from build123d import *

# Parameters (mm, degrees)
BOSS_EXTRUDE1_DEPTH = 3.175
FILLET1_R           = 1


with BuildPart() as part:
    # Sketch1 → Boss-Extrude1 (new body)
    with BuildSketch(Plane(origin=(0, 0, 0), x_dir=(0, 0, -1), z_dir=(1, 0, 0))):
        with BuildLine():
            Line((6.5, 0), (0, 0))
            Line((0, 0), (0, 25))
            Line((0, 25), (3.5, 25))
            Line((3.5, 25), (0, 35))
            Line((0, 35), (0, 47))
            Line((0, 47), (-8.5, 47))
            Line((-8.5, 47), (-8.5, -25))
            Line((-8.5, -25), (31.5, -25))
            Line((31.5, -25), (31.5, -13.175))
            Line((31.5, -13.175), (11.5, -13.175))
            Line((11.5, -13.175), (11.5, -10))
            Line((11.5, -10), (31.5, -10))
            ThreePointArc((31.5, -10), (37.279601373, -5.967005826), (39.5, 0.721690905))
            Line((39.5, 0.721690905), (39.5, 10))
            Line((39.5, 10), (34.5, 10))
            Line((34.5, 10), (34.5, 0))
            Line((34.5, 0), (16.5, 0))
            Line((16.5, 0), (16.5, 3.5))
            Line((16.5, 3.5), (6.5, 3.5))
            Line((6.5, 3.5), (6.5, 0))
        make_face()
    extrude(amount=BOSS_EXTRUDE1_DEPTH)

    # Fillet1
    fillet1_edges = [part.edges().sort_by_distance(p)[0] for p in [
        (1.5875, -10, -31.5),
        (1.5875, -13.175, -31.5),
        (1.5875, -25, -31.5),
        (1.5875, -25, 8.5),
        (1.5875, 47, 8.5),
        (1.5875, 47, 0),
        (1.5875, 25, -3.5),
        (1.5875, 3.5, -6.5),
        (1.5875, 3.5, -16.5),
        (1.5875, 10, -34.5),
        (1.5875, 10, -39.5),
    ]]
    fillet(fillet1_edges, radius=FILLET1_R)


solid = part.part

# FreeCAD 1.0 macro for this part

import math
import FreeCAD as App
import Part
import Sketcher


def edges_at(feature, points):
    """Names of the edges that pass closest to the given points."""
    edges = feature.Shape.Edges
    near = lambda p: min(range(len(edges)), key=lambda i: edges[i].distToShape(Part.Vertex(*p))[0])
    return sorted({f"Edge{near(p) + 1}" for p in points})

doc = App.newDocument("Part")
body = doc.addObject("PartDesign::Body", "Body")

# Sketch on YZ plane
sketch1 = body.newObject("Sketcher::SketchObject", "Sketch")
sketch1.AttachmentSupport = (doc.getObject("YZ_Plane"), [""])
sketch1.MapMode = "FlatFace"
sketch1.addGeometry([
    Part.LineSegment(App.Vector(0, -6.5, 0), App.Vector(0, 0, 0)),  # 0
    Part.LineSegment(App.Vector(0, 0, 0), App.Vector(25, 0, 0)),  # 1
    Part.LineSegment(App.Vector(25, 0, 0), App.Vector(25, -3.5, 0)),  # 2
    Part.LineSegment(App.Vector(25, -3.5, 0), App.Vector(35, 0, 0)),  # 3
    Part.LineSegment(App.Vector(35, 0, 0), App.Vector(47, 0, 0)),  # 4
    Part.LineSegment(App.Vector(47, 0, 0), App.Vector(47, 8.5, 0)),  # 5
    Part.LineSegment(App.Vector(47, 8.5, 0), App.Vector(-25, 8.5, 0)),  # 6
    Part.LineSegment(App.Vector(-25, 8.5, 0), App.Vector(-25, -31.5, 0)),  # 7
    Part.LineSegment(App.Vector(-25, -31.5, 0), App.Vector(-13.2, -31.5, 0)),  # 8
    Part.LineSegment(App.Vector(-13.2, -31.5, 0), App.Vector(-13.2, -11.5, 0)),  # 9
    Part.LineSegment(App.Vector(-13.2, -11.5, 0), App.Vector(-10, -11.5, 0)),  # 10
    Part.LineSegment(App.Vector(-10, -11.5, 0), App.Vector(-10, -31.5, 0)),  # 11
    Part.ArcOfCircle(Part.Circle(App.Vector(0.7, -28.3, 0), App.Vector(0, 0, 1), 11.2), math.radians(-163), math.radians(-90)),  # 12
    Part.LineSegment(App.Vector(0.7, -39.5, 0), App.Vector(10, -39.5, 0)),  # 13
    Part.LineSegment(App.Vector(10, -39.5, 0), App.Vector(10, -34.5, 0)),  # 14
    Part.LineSegment(App.Vector(10, -34.5, 0), App.Vector(0, -34.5, 0)),  # 15
    Part.LineSegment(App.Vector(0, -34.5, 0), App.Vector(0, -16.5, 0)),  # 16
    Part.LineSegment(App.Vector(0, -16.5, 0), App.Vector(3.5, -16.5, 0)),  # 17
    Part.LineSegment(App.Vector(3.5, -16.5, 0), App.Vector(3.5, -6.5, 0)),  # 18
    Part.LineSegment(App.Vector(3.5, -6.5, 0), App.Vector(0, -6.5, 0)),  # 19
], False)
sketch1.addConstraint([
    Sketcher.Constraint("Coincident", 0, 2, 1, 1),
    Sketcher.Constraint("Coincident", 1, 2, 2, 1),
    Sketcher.Constraint("Coincident", 2, 2, 3, 1),
    Sketcher.Constraint("Coincident", 3, 2, 4, 1),
    Sketcher.Constraint("Coincident", 4, 2, 5, 1),
    Sketcher.Constraint("Coincident", 5, 2, 6, 1),
    Sketcher.Constraint("Coincident", 6, 2, 7, 1),
    Sketcher.Constraint("Coincident", 7, 2, 8, 1),
    Sketcher.Constraint("Coincident", 8, 2, 9, 1),
    Sketcher.Constraint("Coincident", 9, 2, 10, 1),
    Sketcher.Constraint("Coincident", 10, 2, 11, 1),
    Sketcher.Constraint("Coincident", 11, 2, 12, 1),
    Sketcher.Constraint("Tangent", 12, 2, 13, 1),
    Sketcher.Constraint("Coincident", 13, 2, 14, 1),
    Sketcher.Constraint("Coincident", 14, 2, 15, 1),
    Sketcher.Constraint("Coincident", 15, 2, 16, 1),
    Sketcher.Constraint("Coincident", 16, 2, 17, 1),
    Sketcher.Constraint("Coincident", 17, 2, 18, 1),
    Sketcher.Constraint("Coincident", 18, 2, 19, 1),
    Sketcher.Constraint("Coincident", 19, 2, 0, 1),
    Sketcher.Constraint("Vertical", 0),
    Sketcher.Constraint("Horizontal", 1),
    Sketcher.Constraint("Vertical", 2),
    Sketcher.Constraint("Horizontal", 4),
    Sketcher.Constraint("Vertical", 5),
    Sketcher.Constraint("Horizontal", 6),
    Sketcher.Constraint("Vertical", 7),
    Sketcher.Constraint("Horizontal", 8),
    Sketcher.Constraint("Vertical", 9),
    Sketcher.Constraint("Horizontal", 10),
    Sketcher.Constraint("Vertical", 11),
    Sketcher.Constraint("Horizontal", 13),
    Sketcher.Constraint("Vertical", 14),
    Sketcher.Constraint("Horizontal", 15),
    Sketcher.Constraint("Vertical", 16),
    Sketcher.Constraint("Horizontal", 17),
    Sketcher.Constraint("Vertical", 18),
    Sketcher.Constraint("Horizontal", 19),
    Sketcher.Constraint("Coincident", 0, 2, -1, 1),
    Sketcher.Constraint("PointOnObject", 3, 2, -1),
    Sketcher.Constraint("PointOnObject", 15, 2, -2),
    Sketcher.Constraint("Horizontal", 8, 2, 11, 2),
    Sketcher.Constraint("Equal", 19, 2),
    Sketcher.Constraint("Equal", 15, 18),
    Sketcher.Constraint("DistanceX", 1, 1, 1, 2, 25.0),
    Sketcher.Constraint("DistanceX", 4, 1, 4, 2, 12.0),
    Sketcher.Constraint("DistanceX", 6, 2, 6, 1, 72.0),
    Sketcher.Constraint("DistanceX", 15, 2, 15, 1, 10.0),
    Sketcher.Constraint("DistanceY", 7, 2, 7, 1, 40.0),
    Sketcher.Constraint("DistanceY", 9, 1, 9, 2, 20.0),
    Sketcher.Constraint("DistanceY", 14, 1, 14, 2, 5.0),
    Sketcher.Constraint("DistanceY", 16, 1, 16, 2, 18.0),
    Sketcher.Constraint("DistanceX", 17, 1, 17, 2, 3.5),
    Sketcher.Constraint("DistanceY", 0, 1, 0, 2, 6.5),
    Sketcher.Constraint("DistanceY", 5, 1, 5, 2, 8.5),
    Sketcher.Constraint("DistanceX", -1, 1, 3, 2, 35.0),
    Sketcher.Constraint("DistanceX", 10, 2, -1, 1, 10.0),
    Sketcher.Constraint("DistanceX", 8, 1, 8, 2, 11.825),
    Sketcher.Constraint("Radius", 12, 11.184666),
])
pad1 = body.newObject("PartDesign::Pad", "Pad")
pad1.Profile = sketch1
pad1.Length = 3.175
doc.recompute()

fillet = body.newObject("PartDesign::Fillet", "Fillet")
fillet.Base = (pad1, edges_at(pad1, [
    (1.587, -10, -31.5),
    (1.587, -13.175, -31.5),
    (1.587, -25, -31.5),
    (1.587, -25, 8.5),
    (1.587, 47, 8.5),
    (1.587, 47, 0),
    (1.587, 25, -3.5),
    (1.587, 3.5, -6.5),
    (1.587, 3.5, -16.5),
    (1.587, 10, -34.5),
    (1.587, 10, -39.5),
]))
fillet.Radius = 1

doc.recompute()
